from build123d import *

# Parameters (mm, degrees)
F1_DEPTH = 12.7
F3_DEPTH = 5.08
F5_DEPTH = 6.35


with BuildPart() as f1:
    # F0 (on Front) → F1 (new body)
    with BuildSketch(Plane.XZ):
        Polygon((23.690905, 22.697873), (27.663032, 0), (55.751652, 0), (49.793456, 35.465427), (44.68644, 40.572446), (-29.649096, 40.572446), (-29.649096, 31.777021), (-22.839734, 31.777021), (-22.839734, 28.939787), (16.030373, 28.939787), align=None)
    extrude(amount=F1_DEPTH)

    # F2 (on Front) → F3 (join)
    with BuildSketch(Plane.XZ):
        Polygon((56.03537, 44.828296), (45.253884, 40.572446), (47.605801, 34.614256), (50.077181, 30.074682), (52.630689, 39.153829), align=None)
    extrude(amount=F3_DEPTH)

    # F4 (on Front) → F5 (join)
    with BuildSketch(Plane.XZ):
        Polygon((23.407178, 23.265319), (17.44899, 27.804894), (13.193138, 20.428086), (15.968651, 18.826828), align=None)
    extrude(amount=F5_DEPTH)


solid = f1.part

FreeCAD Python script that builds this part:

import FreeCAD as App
import Part
import Sketcher
from FreeCAD import Vector
Q = App.Units.Quantity


def add_polygon(sketch, points):
    """Adds a closed chain of lines whose ends are joined by coincident constraints."""
    first, n = sketch.GeometryCount, len(points)
    for a, b in zip(points, points[1:] + points[:1]):
        sketch.addGeometry(Part.LineSegment(App.Vector(*a, 0), App.Vector(*b, 0)), False)
    for i in range(n):
        sketch.addConstraint(Sketcher.Constraint("Coincident", first + i, 2, first + (i + 1) % n, 1))

doc = App.newDocument("Part")
body = doc.addObject("PartDesign::Body", "Body")

# Sketch on XZ plane
sketch1 = doc.addObject("Sketcher::SketchObject", "Sketch")
body.addObject(sketch1)
sketch1.AttachmentSupport = (doc.XZ_Plane, [""])
sketch1.MapMode = "FlatFace"
add_polygon(sketch1, [(23.7, 22.7), (27.7, 0), (55.8, 0), (49.8, 35.5), (44.7, 40.6), (-29.6, 40.6), (-29.6, 31.8), (-22.8, 31.8), (-22.8, 28.9), (16, 28.9)])  # lines 0-9
sketch1.addConstraint(Sketcher.Constraint("Horizontal", 1))
sketch1.addConstraint(Sketcher.Constraint("Horizontal", 4))
sketch1.addConstraint(Sketcher.Constraint("Vertical", 5))
sketch1.addConstraint(Sketcher.Constraint("Horizontal", 6))
sketch1.addConstraint(Sketcher.Constraint("Vertical", 7))
sketch1.addConstraint(Sketcher.Constraint("Horizontal", 8))
sketch1.addConstraint(Sketcher.Constraint("PointOnObject", 0, 2, -1))
sketch1.addConstraint(Sketcher.Constraint("Angle", 3, Q("134.999983 deg")))
sketch1.addConstraint(Sketcher.Constraint("DistanceX", 1, 1, 1, 2, 28.08862))
sketch1.addConstraint(Sketcher.Constraint("Distance", 9, 9.881561))
sketch1.addConstraint(Sketcher.Constraint("DistanceX", 4, 2, 4, 1, 74.335536))
sketch1.addConstraint(Sketcher.Constraint("DistanceX", 6, 1, 6, 2, 6.809362))
sketch1.addConstraint(Sketcher.Constraint("DistanceX", 8, 1, 8, 2, 38.870107))
sketch1.addConstraint(Sketcher.Constraint("DistanceY", 5, 2, 5, 1, 8.795425))
sketch1.addConstraint(Sketcher.Constraint("DistanceY", 7, 2, 7, 1, 2.837234))
sketch1.addConstraint(Sketcher.Constraint("DistanceX", -1, 1, 3, 2, 44.68644))
sketch1.addConstraint(Sketcher.Constraint("DistanceY", -1, 1, 5, 2, 31.777021))
sketch1.addConstraint(Sketcher.Constraint("DistanceY", 2, 2, 3, 2, 5.107019))
sketch1.addConstraint(Sketcher.Constraint("DistanceX", 8, 2, 0, 2, 11.632659))
sketch1.addConstraint(Sketcher.Constraint("DistanceX", 9, 2, 2, 2, 26.102551))
pad1 = doc.addObject("PartDesign::Pad", "Pad")
body.addObject(pad1)
pad1.Profile = sketch1
pad1.Length = Q("0.5 in")

# Sketch on XZ plane
sketch2 = doc.addObject("Sketcher::SketchObject", "Sketch001")
body.addObject(sketch2)
sketch2.AttachmentSupport = (doc.XZ_Plane, [""])
sketch2.MapMode = "FlatFace"
add_polygon(sketch2, [(56, 45), (45, 41), (48, 35), (50, 30), (53, 39)])  # lines 0-4
sketch2.addConstraint(Sketcher.Constraint("Perpendicular", 0, 1))
sketch2.addConstraint(Sketcher.Constraint("Distance", 2, 5.168699))
sketch2.addConstraint(Sketcher.Constraint("Distance", 3, 9.4314))
sketch2.addConstraint(Sketcher.Constraint("DistanceX", -1, 1, 1, 2, 47.605801))
sketch2.addConstraint(Sketcher.Constraint("Distance", 0, 11.591061))
sketch2.addConstraint(Sketcher.Constraint("Distance", 4, 6.617509))
sketch2.addConstraint(Sketcher.Constraint("DistanceX", -1, 1, 2, 2, 50.077181))
sketch2.addConstraint(Sketcher.Constraint("DistanceY", -1, 1, 2, 2, 30.074682))
sketch2.addConstraint(Sketcher.Constraint("DistanceX", -1, 1, 3, 2, 52.630689))
sketch2.addConstraint(Sketcher.Constraint("DistanceX", -1, 1, 4, 2, 56.03537))
pad2 = doc.addObject("PartDesign::Pad", "Pad001")
body.addObject(pad2)
pad2.Profile = sketch2
pad2.Length = Q("0.2 in")

# Sketch on XZ plane
sketch3 = doc.addObject("Sketcher::SketchObject", "Sketch002")
body.addObject(sketch3)
sketch3.AttachmentSupport = (doc.XZ_Plane, [""])
sketch3.MapMode = "FlatFace"
add_polygon(sketch3, [(23.4, 23.3), (17.4, 27.8), (13.2, 20.4), (16, 18.8)])  # lines 0-3
sketch3.addConstraint(Sketcher.Constraint("Perpendicular", 1, 2))
sketch3.addConstraint(Sketcher.Constraint("Distance", 0, 7.49051))
sketch3.addConstraint(Sketcher.Constraint("Distance", 1, 8.51643))
sketch3.addConstraint(Sketcher.Constraint("DistanceX", -1, 1, 0, 2, 17.44899))
sketch3.addConstraint(Sketcher.Constraint("DistanceX", -1, 1, 2, 2, 15.968651))
sketch3.addConstraint(Sketcher.Constraint("DistanceY", -1, 1, 3, 2, 23.265319))
sketch3.addConstraint(Sketcher.Constraint("DistanceX", 1, 2, 0, 2, 4.255852))
sketch3.addConstraint(Sketcher.Constraint("DistanceY", 2, 2, 3, 2, 4.438491))
pad3 = doc.addObject("PartDesign::Pad", "Pad002")
body.addObject(pad3)
pad3.Profile = sketch3
pad3.Length = Q("0.25 in")

doc.recompute()
